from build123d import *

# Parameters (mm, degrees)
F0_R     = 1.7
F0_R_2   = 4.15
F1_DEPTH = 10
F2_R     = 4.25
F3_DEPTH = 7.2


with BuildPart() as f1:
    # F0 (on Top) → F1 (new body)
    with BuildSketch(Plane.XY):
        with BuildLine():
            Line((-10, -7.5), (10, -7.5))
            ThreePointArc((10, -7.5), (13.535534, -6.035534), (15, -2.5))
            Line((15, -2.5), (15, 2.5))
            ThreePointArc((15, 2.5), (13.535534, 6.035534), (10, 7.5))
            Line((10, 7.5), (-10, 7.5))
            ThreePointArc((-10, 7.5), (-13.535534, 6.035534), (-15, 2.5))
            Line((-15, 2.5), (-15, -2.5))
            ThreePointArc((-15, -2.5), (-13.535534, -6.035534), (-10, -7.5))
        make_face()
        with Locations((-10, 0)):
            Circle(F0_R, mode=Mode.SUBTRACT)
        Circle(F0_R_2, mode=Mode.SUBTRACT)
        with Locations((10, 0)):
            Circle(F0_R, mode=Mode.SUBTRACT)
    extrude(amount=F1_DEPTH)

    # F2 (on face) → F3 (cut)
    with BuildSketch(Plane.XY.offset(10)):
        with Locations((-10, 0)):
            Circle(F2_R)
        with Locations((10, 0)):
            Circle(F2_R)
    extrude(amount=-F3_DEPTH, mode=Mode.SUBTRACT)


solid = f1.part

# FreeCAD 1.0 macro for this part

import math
import FreeCAD as App
import Part
import Sketcher

doc = App.newDocument("Part")
body = doc.addObject("PartDesign::Body", "Body")

sketch1 = doc.addObject("Sketcher::SketchObject", "Sketch")
body.addObject(sketch1)
sketch1.AttachmentSupport = (doc.XY_Plane, [""])
sketch1.MapMode = "FlatFace"
sketch1.addGeometry(Part.LineSegment(App.Vector(-10, -7.5, 0), App.Vector(10, -7.5, 0)), False)
sketch1.addGeometry(Part.ArcOfCircle(Part.Circle(App.Vector(10, -2.5, 0), App.Vector(0, 0, 1), 5), math.radians(-90.000004), math.radians(0.000004)), False)
sketch1.addGeometry(Part.LineSegment(App.Vector(15, -2.5, 0), App.Vector(15, 2.5, 0)), False)
sketch1.addGeometry(Part.ArcOfCircle(Part.Circle(App.Vector(10, 2.5, 0), App.Vector(0, 0, 1), 5), math.radians(-0.000004), math.radians(90.000004)), False)
sketch1.addGeometry(Part.LineSegment(App.Vector(10, 7.5, 0), App.Vector(-10, 7.5, 0)), False)
sketch1.addGeometry(Part.ArcOfCircle(Part.Circle(App.Vector(-10, 2.5, 0), App.Vector(0, 0, 1), 5), math.radians(89.999996), math.radians(180.000004)), False)
sketch1.addGeometry(Part.LineSegment(App.Vector(-15, 2.5, 0), App.Vector(-15, -2.5, 0)), False)
sketch1.addGeometry(Part.ArcOfCircle(Part.Circle(App.Vector(-10, -2.5, 0), App.Vector(0, 0, 1), 5), math.radians(179.999996), math.radians(270.000004)), False)
sketch1.addGeometry(Part.Circle(App.Vector(-10, 0, 0), App.Vector(0, 0, 1), 1.7), False)
sketch1.addGeometry(Part.Circle(App.Vector(0, 0, 0), App.Vector(0, 0, 1), 4.15), False)
sketch1.addGeometry(Part.Circle(App.Vector(10, 0, 0), App.Vector(0, 0, 1), 1.7), False)
sketch1.addConstraint(Sketcher.Constraint("Tangent", 0, 2, 1, 1))
sketch1.addConstraint(Sketcher.Constraint("Tangent", 1, 2, 2, 1))
sketch1.addConstraint(Sketcher.Constraint("Tangent", 2, 2, 3, 1))
sketch1.addConstraint(Sketcher.Constraint("Tangent", 3, 2, 4, 1))
sketch1.addConstraint(Sketcher.Constraint("Tangent", 4, 2, 5, 1))
sketch1.addConstraint(Sketcher.Constraint("Tangent", 5, 2, 6, 1))
sketch1.addConstraint(Sketcher.Constraint("Tangent", 6, 2, 7, 1))
sketch1.addConstraint(Sketcher.Constraint("Tangent", 7, 2, 0, 1))
sketch1.addConstraint(Sketcher.Constraint("Horizontal", 0))
sketch1.addConstraint(Sketcher.Constraint("Vertical", 2))
sketch1.addConstraint(Sketcher.Constraint("Horizontal", 4))
sketch1.addConstraint(Sketcher.Constraint("Vertical", 6))
sketch1.addConstraint(Sketcher.Constraint("Coincident", 9, 3, -1, 1))
sketch1.addConstraint(Sketcher.Constraint("Equal", 1, 3))
sketch1.addConstraint(Sketcher.Constraint("Equal", 3, 5))
sketch1.addConstraint(Sketcher.Constraint("Equal", 5, 7))
sketch1.addConstraint(Sketcher.Constraint("Equal", 8, 10))
sketch1.addConstraint(Sketcher.Constraint("Symmetric", 1, 3, 5, 3, -1, 1))
sketch1.addConstraint(Sketcher.Constraint("Symmetric", 8, 3, 10, 3, -1, 1))
sketch1.addConstraint(Sketcher.Constraint("PointOnObject", 8, 3, -1))
sketch1.addConstraint(Sketcher.Constraint("Vertical", 7, 3, 8, 3))
sketch1.addConstraint(Sketcher.Constraint("Radius", 1, 5.0))
sketch1.addConstraint(Sketcher.Constraint("Diameter", 8, 3.4))
sketch1.addConstraint(Sketcher.Constraint("Diameter", 9, 8.3))
sketch1.addConstraint(Sketcher.Constraint("DistanceX", 0, 1, 0, 2, 20.0))
sketch1.addConstraint(Sketcher.Constraint("DistanceY", 2, 1, 2, 2, 5.0))
pad1 = doc.addObject("PartDesign::Pad", "Pad")
body.addObject(pad1)
pad1.Profile = sketch1
pad1.Length = 10

sketch2 = doc.addObject("Sketcher::SketchObject", "Sketch001")
body.addObject(sketch2)
sketch2.AttachmentSupport = (doc.XY_Plane, [""])
sketch2.MapMode = "FlatFace"
sketch2.AttachmentOffset = App.Placement(App.Vector(0, 0, 10), App.Rotation())
sketch2.addGeometry(Part.Circle(App.Vector(-10, 0, 0), App.Vector(0, 0, 1), 4.25), False)
sketch2.addGeometry(Part.Circle(App.Vector(10, 0, 0), App.Vector(0, 0, 1), 4.25), False)
sketch2.addConstraint(Sketcher.Constraint("Equal", 0, 1))
sketch2.addConstraint(Sketcher.Constraint("Symmetric", 0, 3, 1, 3, -1, 1))
sketch2.addConstraint(Sketcher.Constraint("PointOnObject", 0, 3, -1))
sketch2.addConstraint(Sketcher.Constraint("Diameter", 0, 8.5))
sketch2.addConstraint(Sketcher.Constraint("DistanceX", 0, 3, -1, 1, 10.0))
pocket1 = doc.addObject("PartDesign::Pocket", "Pocket")
body.addObject(pocket1)
pocket1.Profile = sketch2
pocket1.Length = 7.2

doc.recompute()
